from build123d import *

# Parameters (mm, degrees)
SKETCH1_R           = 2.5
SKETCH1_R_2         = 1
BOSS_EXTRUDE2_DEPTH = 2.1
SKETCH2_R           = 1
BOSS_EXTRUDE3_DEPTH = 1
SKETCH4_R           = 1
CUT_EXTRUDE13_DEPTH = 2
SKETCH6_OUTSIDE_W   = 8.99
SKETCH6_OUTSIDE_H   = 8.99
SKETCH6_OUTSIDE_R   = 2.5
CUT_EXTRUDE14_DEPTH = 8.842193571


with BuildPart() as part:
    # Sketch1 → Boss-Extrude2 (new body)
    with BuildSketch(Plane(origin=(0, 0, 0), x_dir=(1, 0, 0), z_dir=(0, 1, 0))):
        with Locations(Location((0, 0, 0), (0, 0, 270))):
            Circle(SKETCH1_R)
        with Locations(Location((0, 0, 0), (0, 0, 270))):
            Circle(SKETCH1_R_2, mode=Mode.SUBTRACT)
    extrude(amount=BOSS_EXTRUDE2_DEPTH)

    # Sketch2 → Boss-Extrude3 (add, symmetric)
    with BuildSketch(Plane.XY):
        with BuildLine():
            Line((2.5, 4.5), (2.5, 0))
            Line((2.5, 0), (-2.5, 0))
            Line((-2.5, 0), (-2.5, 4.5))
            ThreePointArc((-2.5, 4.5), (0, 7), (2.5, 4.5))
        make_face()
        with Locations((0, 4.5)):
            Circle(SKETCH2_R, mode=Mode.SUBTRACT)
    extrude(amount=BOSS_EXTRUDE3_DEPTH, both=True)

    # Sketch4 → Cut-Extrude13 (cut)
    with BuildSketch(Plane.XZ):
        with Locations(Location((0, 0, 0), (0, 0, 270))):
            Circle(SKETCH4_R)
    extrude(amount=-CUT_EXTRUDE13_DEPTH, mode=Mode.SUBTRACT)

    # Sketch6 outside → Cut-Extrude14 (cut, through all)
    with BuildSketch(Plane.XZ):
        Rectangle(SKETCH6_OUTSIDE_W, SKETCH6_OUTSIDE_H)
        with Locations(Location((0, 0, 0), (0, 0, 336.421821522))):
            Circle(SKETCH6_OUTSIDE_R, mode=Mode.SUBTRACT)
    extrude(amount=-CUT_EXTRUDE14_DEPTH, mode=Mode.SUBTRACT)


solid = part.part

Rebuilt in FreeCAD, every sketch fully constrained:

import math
import FreeCAD as App
import Part
import Sketcher
from FreeCAD import Vector

doc = App.newDocument("Part")
body = doc.addObject("PartDesign::Body", "Body")

# Sketch on XZ plane
sketch1 = body.newObject("Sketcher::SketchObject", "Sketch")
sketch1.AttachmentSupport = (doc.getObject("XZ_Plane"), [""])
sketch1.MapMode = "FlatFace"
sketch1.addGeometry(Part.Circle(Vector(0, 0, 0), Vector(0, 0, 1), 2.5), False)
sketch1.addGeometry(Part.Circle(Vector(0, 0, 0), Vector(0, 0, 1), 1), False)
sketch1.addConstraint(Sketcher.Constraint("Coincident", 0, 3, -1, 1))
sketch1.addConstraint(Sketcher.Constraint("Coincident", 1, 3, -1, 1))
sketch1.addConstraint(Sketcher.Constraint("Diameter", 0, 5.0))
sketch1.addConstraint(Sketcher.Constraint("Diameter", 1, 2.0))
pad1 = body.newObject("PartDesign::Pad", "Pad")
pad1.Profile = sketch1
pad1.Length = 2.1
pad1.Reversed = True

# Sketch on XY plane
sketch2 = body.newObject("Sketcher::SketchObject", "Sketch001")
sketch2.AttachmentSupport = (doc.getObject("XY_Plane"), [""])
sketch2.MapMode = "FlatFace"
sketch2.addGeometry(Part.LineSegment(Vector(2.5, 0, 0), Vector(2.5, 4.5, 0)), False)
sketch2.addGeometry(Part.ArcOfCircle(Part.Circle(Vector(0, 4.5, 0), Vector(0, 0, 1), 2.5), math.radians(0), math.radians(180)), False)
sketch2.addGeometry(Part.LineSegment(Vector(-2.5, 4.5, 0), Vector(-2.5, 0, 0)), False)
sketch2.addGeometry(Part.LineSegment(Vector(-2.5, 0, 0), Vector(2.5, 0, 0)), False)
sketch2.addGeometry(Part.Circle(Vector(0, 4.5, 0), Vector(0, 0, 1), 1), False)
sketch2.addConstraint(Sketcher.Constraint("Tangent", 0, 2, 1, 1))
sketch2.addConstraint(Sketcher.Constraint("Tangent", 1, 2, 2, 1))
sketch2.addConstraint(Sketcher.Constraint("Coincident", 2, 2, 3, 1))
sketch2.addConstraint(Sketcher.Constraint("Coincident", 3, 2, 0, 1))
sketch2.addConstraint(Sketcher.Constraint("Vertical", 0))
sketch2.addConstraint(Sketcher.Constraint("Vertical", 2))
sketch2.addConstraint(Sketcher.Constraint("Horizontal", 3))
sketch2.addConstraint(Sketcher.Constraint("Coincident", 4, 3, 1, 3))
sketch2.addConstraint(Sketcher.Constraint("Symmetric", 2, 2, 3, 2, -1, 1))
sketch2.addConstraint(Sketcher.Constraint("Diameter", 4, 2.0))
sketch2.addConstraint(Sketcher.Constraint("Radius", 1, 2.5))
sketch2.addConstraint(Sketcher.Constraint("DistanceY", 0, 1, 0, 2, 4.5))
pad2 = body.newObject("PartDesign::Pad", "Pad001")
pad2.Profile = sketch2
pad2.Length = 2
pad2.Midplane = True

# Sketch on XZ plane
sketch3 = body.newObject("Sketcher::SketchObject", "Sketch002")
sketch3.AttachmentSupport = (doc.getObject("XZ_Plane"), [""])
sketch3.MapMode = "FlatFace"
sketch3.addGeometry(Part.Circle(Vector(0, 0, 0), Vector(0, 0, 1), 1), False)
sketch3.addConstraint(Sketcher.Constraint("Coincident", 0, 3, -1, 1))
sketch3.addConstraint(Sketcher.Constraint("Diameter", 0, 2.0))
pocket1 = body.newObject("PartDesign::Pocket", "Pocket")
pocket1.Profile = sketch3
pocket1.Length = 2

# Sketch on XZ plane
sketch4 = body.newObject("Sketcher::SketchObject", "Sketch003")
sketch4.AttachmentSupport = (doc.getObject("XZ_Plane"), [""])
sketch4.MapMode = "FlatFace"
sketch4.addGeometry(Part.LineSegment(Vector(-4.5, 4.5, 0), Vector(-4.5, -4.5, 0)), False)
sketch4.addGeometry(Part.LineSegment(Vector(-4.5, -4.5, 0), Vector(4.5, -4.5, 0)), False)
sketch4.addGeometry(Part.LineSegment(Vector(4.5, -4.5, 0), Vector(4.5, 4.5, 0)), False)
sketch4.addGeometry(Part.LineSegment(Vector(4.5, 4.5, 0), Vector(-4.5, 4.5, 0)), False)
sketch4.addGeometry(Part.Circle(Vector(0, 0, 0), Vector(0, 0, 1), 2.5), False)
sketch4.addConstraint(Sketcher.Constraint("Coincident", 0, 2, 1, 1))
sketch4.addConstraint(Sketcher.Constraint("Coincident", 1, 2, 2, 1))
sketch4.addConstraint(Sketcher.Constraint("Coincident", 2, 2, 3, 1))
sketch4.addConstraint(Sketcher.Constraint("Coincident", 3, 2, 0, 1))
sketch4.addConstraint(Sketcher.Constraint("Vertical", 0))
sketch4.addConstraint(Sketcher.Constraint("Horizontal", 1))
sketch4.addConstraint(Sketcher.Constraint("Vertical", 2))
sketch4.addConstraint(Sketcher.Constraint("Horizontal", 3))
sketch4.addConstraint(Sketcher.Constraint("Coincident", 4, 3, -1, 1))
sketch4.addConstraint(Sketcher.Constraint("Symmetric", 0, 2, 2, 2, -1, 1))
sketch4.addConstraint(Sketcher.Constraint("Equal", 3, 0))
sketch4.addConstraint(Sketcher.Constraint("Diameter", 4, 5.0))
sketch4.addConstraint(Sketcher.Constraint("DistanceX", 1, 1, 1, 2, 8.99))
pocket2 = body.newObject("PartDesign::Pocket", "Pocket001")
pocket2.Profile = sketch4
pocket2.Type = "ThroughAll"

doc.recompute()
